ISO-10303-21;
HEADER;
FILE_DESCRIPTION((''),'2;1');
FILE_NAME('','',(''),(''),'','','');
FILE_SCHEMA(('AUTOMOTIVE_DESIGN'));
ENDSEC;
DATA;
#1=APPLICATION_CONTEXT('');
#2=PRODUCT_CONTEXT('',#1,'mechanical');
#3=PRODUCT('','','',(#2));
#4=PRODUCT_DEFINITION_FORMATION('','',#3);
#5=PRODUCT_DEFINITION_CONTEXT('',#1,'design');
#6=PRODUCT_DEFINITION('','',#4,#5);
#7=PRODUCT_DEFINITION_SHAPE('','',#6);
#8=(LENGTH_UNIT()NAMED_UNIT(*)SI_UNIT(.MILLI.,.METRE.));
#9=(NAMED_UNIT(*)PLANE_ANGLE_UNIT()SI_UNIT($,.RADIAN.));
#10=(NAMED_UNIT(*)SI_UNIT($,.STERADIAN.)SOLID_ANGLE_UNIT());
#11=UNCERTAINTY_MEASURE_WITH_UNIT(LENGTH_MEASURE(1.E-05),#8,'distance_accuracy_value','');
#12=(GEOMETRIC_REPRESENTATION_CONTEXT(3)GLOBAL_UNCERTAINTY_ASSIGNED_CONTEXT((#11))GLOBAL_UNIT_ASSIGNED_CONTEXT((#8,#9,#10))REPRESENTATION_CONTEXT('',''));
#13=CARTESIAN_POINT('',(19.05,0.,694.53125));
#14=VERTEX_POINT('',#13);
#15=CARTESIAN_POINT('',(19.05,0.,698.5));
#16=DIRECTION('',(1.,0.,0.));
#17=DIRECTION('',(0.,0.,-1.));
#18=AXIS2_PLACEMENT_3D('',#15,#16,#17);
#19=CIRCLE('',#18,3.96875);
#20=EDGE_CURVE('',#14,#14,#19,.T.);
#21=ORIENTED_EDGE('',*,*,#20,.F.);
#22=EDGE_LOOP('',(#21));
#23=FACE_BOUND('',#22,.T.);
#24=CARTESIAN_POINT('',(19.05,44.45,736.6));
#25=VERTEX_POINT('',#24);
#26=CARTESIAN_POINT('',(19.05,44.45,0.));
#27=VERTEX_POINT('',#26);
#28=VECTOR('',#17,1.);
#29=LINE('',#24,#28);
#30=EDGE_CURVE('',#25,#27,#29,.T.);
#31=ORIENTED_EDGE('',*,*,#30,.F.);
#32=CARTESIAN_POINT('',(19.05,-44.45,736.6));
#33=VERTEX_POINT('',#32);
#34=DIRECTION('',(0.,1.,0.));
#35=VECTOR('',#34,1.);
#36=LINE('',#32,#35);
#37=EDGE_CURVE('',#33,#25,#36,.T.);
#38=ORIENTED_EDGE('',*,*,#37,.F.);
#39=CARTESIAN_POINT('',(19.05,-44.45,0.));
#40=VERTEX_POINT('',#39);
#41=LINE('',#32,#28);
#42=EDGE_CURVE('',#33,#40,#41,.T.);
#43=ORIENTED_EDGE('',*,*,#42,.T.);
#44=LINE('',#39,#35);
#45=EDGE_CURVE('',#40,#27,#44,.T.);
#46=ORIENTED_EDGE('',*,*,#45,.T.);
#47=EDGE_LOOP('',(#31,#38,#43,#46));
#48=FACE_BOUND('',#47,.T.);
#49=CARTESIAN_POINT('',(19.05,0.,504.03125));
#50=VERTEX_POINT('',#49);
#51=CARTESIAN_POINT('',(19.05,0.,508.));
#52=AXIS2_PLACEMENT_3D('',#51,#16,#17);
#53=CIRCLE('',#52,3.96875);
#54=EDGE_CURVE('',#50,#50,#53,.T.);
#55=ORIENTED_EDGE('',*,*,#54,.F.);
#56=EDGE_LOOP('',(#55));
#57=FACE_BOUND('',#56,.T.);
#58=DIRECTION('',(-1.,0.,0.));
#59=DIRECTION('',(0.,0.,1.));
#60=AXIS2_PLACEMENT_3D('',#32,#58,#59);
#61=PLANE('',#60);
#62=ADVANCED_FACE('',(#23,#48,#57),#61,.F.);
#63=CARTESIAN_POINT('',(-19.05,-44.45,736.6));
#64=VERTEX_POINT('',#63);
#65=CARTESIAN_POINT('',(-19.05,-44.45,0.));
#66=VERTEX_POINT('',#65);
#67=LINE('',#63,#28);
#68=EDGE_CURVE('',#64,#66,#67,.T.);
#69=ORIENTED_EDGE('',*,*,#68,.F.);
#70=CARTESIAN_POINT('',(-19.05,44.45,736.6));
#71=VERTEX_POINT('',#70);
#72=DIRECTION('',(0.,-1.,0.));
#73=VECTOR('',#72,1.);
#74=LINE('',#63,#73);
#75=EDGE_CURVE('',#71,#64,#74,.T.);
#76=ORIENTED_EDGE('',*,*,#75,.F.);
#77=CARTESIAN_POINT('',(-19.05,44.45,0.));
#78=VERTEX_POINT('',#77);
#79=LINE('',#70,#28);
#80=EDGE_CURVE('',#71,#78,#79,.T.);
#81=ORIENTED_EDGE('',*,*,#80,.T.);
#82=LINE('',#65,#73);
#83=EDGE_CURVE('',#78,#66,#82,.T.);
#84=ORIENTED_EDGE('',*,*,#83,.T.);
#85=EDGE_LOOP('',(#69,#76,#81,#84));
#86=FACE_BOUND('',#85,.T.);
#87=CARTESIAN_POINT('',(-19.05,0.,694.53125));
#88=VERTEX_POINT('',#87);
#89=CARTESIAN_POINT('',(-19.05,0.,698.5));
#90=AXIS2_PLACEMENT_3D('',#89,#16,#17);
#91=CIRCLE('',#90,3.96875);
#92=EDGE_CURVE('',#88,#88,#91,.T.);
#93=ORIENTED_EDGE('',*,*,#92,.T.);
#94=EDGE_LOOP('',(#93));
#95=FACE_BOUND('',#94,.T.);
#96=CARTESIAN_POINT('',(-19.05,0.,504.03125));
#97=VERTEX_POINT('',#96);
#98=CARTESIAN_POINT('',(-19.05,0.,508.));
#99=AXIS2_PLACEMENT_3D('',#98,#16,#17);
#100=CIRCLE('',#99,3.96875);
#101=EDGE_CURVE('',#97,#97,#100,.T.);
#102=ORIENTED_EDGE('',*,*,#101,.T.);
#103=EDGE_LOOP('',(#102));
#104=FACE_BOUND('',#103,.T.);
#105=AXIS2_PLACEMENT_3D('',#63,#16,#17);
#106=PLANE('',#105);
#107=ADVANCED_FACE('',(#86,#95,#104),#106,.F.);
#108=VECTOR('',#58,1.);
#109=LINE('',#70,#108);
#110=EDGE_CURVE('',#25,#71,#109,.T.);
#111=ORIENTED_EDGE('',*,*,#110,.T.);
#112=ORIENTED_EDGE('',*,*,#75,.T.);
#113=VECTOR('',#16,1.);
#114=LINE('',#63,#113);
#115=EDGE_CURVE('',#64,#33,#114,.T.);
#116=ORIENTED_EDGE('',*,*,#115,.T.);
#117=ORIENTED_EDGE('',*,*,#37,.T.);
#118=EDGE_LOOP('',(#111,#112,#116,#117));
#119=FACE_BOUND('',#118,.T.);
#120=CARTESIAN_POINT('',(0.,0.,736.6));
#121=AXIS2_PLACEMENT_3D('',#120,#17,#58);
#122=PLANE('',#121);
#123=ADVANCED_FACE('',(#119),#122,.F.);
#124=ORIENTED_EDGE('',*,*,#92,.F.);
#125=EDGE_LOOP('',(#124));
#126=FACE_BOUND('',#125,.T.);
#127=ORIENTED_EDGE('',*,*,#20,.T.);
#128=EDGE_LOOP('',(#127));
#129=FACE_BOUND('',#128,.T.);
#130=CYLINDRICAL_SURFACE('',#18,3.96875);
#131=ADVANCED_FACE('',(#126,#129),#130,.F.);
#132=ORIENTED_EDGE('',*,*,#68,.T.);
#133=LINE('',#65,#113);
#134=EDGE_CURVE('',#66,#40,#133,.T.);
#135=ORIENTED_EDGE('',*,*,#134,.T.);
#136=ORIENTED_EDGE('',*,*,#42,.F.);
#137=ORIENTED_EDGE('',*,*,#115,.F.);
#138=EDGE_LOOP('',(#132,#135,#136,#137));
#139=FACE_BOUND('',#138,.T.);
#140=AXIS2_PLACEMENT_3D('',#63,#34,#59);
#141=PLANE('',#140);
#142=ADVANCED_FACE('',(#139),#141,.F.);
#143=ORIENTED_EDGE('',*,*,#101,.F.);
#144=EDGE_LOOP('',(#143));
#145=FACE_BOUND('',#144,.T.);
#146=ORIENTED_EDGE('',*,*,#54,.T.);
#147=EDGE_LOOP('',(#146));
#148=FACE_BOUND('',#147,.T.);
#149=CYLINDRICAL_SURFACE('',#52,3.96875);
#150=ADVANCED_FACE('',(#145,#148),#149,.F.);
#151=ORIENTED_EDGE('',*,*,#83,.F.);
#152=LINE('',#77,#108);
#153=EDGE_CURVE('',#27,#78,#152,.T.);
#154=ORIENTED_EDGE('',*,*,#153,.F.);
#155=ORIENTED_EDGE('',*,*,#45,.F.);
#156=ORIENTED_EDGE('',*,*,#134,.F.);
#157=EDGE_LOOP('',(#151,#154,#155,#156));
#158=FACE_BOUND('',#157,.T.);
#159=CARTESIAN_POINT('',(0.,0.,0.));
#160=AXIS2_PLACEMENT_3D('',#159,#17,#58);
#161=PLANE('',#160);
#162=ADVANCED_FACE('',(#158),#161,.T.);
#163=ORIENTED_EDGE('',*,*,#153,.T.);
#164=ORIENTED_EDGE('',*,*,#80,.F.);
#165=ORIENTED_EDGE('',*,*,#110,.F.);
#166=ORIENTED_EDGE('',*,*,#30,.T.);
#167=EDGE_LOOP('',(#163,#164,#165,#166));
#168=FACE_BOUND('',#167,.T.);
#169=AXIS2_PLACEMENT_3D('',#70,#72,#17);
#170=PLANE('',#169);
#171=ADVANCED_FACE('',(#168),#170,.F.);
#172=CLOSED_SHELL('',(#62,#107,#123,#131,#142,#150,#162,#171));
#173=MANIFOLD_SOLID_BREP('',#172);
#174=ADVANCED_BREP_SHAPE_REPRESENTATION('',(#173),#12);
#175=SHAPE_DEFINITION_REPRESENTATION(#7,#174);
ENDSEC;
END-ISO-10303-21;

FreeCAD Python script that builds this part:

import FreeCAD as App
import Part
import Sketcher

V = App.Vector
Q = App.Units.Quantity

doc = App.newDocument("Part")
body = doc.addObject("PartDesign::Body", "Body")

# Sketch on XY plane
sketch1 = body.newObject("Sketcher::SketchObject", "Sketch")
sketch1.AttachmentSupport = (doc.getObject("XY_Plane"), [""])
sketch1.MapMode = "FlatFace"
sketch1.addGeometry([
    Part.LineSegment(V(-19, 44, 0), V(-19, -44, 0)),
    Part.LineSegment(V(-19, -44, 0), V(19, -44, 0)),
    Part.LineSegment(V(19, -44, 0), V(19, 44, 0)),
    Part.LineSegment(V(19, 44, 0), V(-19, 44, 0)),
], False)
sketch1.addConstraint([
    Sketcher.Constraint("Coincident", 0, 2, 1, 1),
    Sketcher.Constraint("Coincident", 1, 2, 2, 1),
    Sketcher.Constraint("Coincident", 2, 2, 3, 1),
    Sketcher.Constraint("Coincident", 3, 2, 0, 1),
    Sketcher.Constraint("Vertical", 0),
    Sketcher.Constraint("Horizontal", 1),
    Sketcher.Constraint("Vertical", 2),
    Sketcher.Constraint("Horizontal", 3),
    Sketcher.Constraint("Symmetric", 0, 2, 2, 2, -1, 1),
    Sketcher.Constraint("DistanceX", 1, 1, 1, 2, Q("1.5 in")),
    Sketcher.Constraint("DistanceY", 0, 2, 0, 1, Q("3.5 in")),
])
pad1 = body.newObject("PartDesign::Pad", "Pad")
pad1.Profile = sketch1
pad1.Length = Q("29 in")

# Sketch on YZ plane
sketch2 = body.newObject("Sketcher::SketchObject", "Sketch001")
sketch2.AttachmentSupport = (doc.getObject("YZ_Plane"), [""])
sketch2.MapMode = "FlatFace"
sketch2.AttachmentOffset = App.Placement(V(0, 0, 0.75 * 25.4), App.Rotation())
sketch2.addGeometry([
    Part.Circle(V(0, 698.5, 0), V(0, 0, 1), 4),
    Part.Circle(V(0, 508, 0), V(0, 0, 1), 4),
], False)
sketch2.addConstraint([
    Sketcher.Constraint("Equal", 0, 1),
    Sketcher.Constraint("PointOnObject", 0, 3, -2),
    Sketcher.Constraint("PointOnObject", 1, 3, -2),
    Sketcher.Constraint("Diameter", 0, Q("0.3125 in")),
    Sketcher.Constraint("DistanceY", -1, 1, 1, 3, Q("20 in")),
    Sketcher.Constraint("DistanceY", -1, 1, 0, 3, Q("27.5 in")),
])
doc.recompute()
hole = body.newObject("PartDesign::Hole", "Hole")
hole.Profile = sketch2
hole.ThreadType = "None"
hole.Diameter = Q("0.3125 in")
hole.DepthType = "ThroughAll"

doc.recompute()
